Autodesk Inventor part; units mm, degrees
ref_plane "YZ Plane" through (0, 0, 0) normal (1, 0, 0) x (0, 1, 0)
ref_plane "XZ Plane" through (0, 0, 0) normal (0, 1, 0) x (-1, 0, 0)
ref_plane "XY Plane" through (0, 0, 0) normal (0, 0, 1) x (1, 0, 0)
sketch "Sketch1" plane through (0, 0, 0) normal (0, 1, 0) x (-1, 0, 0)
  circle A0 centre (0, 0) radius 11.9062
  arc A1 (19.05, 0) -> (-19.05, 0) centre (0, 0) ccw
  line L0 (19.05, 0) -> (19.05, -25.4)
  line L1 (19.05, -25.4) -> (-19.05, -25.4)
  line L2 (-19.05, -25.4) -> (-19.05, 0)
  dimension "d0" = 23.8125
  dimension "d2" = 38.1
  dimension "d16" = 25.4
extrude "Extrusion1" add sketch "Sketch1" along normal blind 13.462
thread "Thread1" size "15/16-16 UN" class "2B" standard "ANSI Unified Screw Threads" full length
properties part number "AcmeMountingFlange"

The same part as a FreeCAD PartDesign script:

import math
import FreeCAD as App
import Part
import Sketcher
from FreeCAD import Vector
Q = App.Units.Quantity

doc = App.newDocument("Part")
body = doc.addObject("PartDesign::Body", "Body")

sketch1 = body.newObject("Sketcher::SketchObject", "Sketch")
sketch1.AttachmentSupport = (doc.getObject("XZ_Plane"), [""])
sketch1.MapMode = "FlatFace"
sketch1.addGeometry(Part.LineSegment(Vector(-19.05, -25.4, 0), Vector(-19.05, 0, 0)), False)
sketch1.addGeometry(Part.ArcOfCircle(Part.Circle(Vector(0, 0, 0), Vector(0, 0, 1), 19.05), math.radians(0), math.radians(180)), False)
sketch1.addGeometry(Part.LineSegment(Vector(19.05, 0, 0), Vector(19.05, -25.4, 0)), False)
sketch1.addGeometry(Part.LineSegment(Vector(19.05, -25.4, 0), Vector(-19.05, -25.4, 0)), False)
sketch1.addGeometry(Part.Circle(Vector(0, 0, 0), Vector(0, 0, 1), 11.9062), False)
sketch1.addConstraint(Sketcher.Constraint("Tangent", 0, 2, 1, 2))
sketch1.addConstraint(Sketcher.Constraint("Tangent", 1, 1, 2, 1))
sketch1.addConstraint(Sketcher.Constraint("Coincident", 2, 2, 3, 1))
sketch1.addConstraint(Sketcher.Constraint("Coincident", 3, 2, 0, 1))
sketch1.addConstraint(Sketcher.Constraint("Vertical", 0))
sketch1.addConstraint(Sketcher.Constraint("Vertical", 2))
sketch1.addConstraint(Sketcher.Constraint("Horizontal", 3))
sketch1.addConstraint(Sketcher.Constraint("Coincident", 1, 3, -1, 1))
sketch1.addConstraint(Sketcher.Constraint("Coincident", 4, 3, -1, 1))
sketch1.addConstraint(Sketcher.Constraint("DistanceY", 0, 1, 0, 2, Q("1 in")))
sketch1.addConstraint(Sketcher.Constraint("Radius", 1, Q("0.75 in")))
sketch1.addConstraint(Sketcher.Constraint("Diameter", 4, Q("0.9375 in")))
pad1 = body.newObject("PartDesign::Pad", "Pad")
pad1.Profile = sketch1
pad1.Length = Q("0.53 in")
pad1.Reversed = True

doc.recompute()
